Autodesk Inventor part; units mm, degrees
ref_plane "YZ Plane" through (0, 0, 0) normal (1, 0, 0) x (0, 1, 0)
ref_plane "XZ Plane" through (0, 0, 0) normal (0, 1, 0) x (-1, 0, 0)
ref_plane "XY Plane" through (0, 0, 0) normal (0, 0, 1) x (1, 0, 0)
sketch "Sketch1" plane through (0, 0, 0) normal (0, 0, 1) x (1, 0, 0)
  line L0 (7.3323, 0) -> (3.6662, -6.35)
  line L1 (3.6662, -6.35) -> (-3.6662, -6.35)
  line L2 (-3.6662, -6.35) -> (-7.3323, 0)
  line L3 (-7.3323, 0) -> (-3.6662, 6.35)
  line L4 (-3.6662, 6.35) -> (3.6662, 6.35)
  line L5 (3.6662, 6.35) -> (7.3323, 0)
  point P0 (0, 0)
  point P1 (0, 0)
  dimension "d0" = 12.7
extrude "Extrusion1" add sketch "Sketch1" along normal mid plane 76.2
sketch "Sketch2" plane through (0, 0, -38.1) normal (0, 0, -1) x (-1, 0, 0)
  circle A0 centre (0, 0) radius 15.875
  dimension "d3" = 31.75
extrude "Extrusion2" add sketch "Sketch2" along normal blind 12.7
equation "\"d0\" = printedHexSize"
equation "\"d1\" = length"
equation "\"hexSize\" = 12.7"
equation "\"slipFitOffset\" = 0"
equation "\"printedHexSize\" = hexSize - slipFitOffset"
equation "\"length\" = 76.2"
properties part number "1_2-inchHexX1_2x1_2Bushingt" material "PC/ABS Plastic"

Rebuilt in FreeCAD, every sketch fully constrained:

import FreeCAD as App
import Part
import Sketcher
from FreeCAD import Vector
Q = App.Units.Quantity


def add_polygon(sketch, points):
    """Adds a closed chain of lines whose ends are joined by coincident constraints."""
    first, n = sketch.GeometryCount, len(points)
    for a, b in zip(points, points[1:] + points[:1]):
        sketch.addGeometry(Part.LineSegment(App.Vector(*a, 0), App.Vector(*b, 0)), False)
    for i in range(n):
        sketch.addConstraint(Sketcher.Constraint("Coincident", first + i, 2, first + (i + 1) % n, 1))

doc = App.newDocument("Part")
body = doc.addObject("PartDesign::Body", "Body")

# Sketch on XY plane
sketch1 = doc.addObject("Sketcher::SketchObject", "Sketch")
body.addObject(sketch1)
sketch1.AttachmentSupport = (doc.XY_Plane, [""])
sketch1.MapMode = "FlatFace"
add_polygon(sketch1, [(4, -6), (7, 0), (4, 6), (-4, 6), (-7, 0), (-4, -6)])  # lines 0-5
sketch1.addConstraint([
    Sketcher.Constraint("Horizontal", 2),
    Sketcher.Constraint("Horizontal", 5),
    Sketcher.Constraint("Symmetric", 0, 2, 3, 2, -1, 1),
    Sketcher.Constraint("Symmetric", 1, 2, 4, 2, -1, 1),
    Sketcher.Constraint("PointOnObject", 0, 2, -1),
    Sketcher.Constraint("Parallel", 0, 3),
    Sketcher.Constraint("Vertical", 2, 2, 4, 2),
    Sketcher.Constraint("DistanceY", 4, 2, 2, 2, Q("0.5 in")),
    Sketcher.Constraint("Angle", 0, Q("60.0005 deg")),
    Sketcher.Constraint("DistanceX", 2, 2, 0, 2, Q("0.433 in")),
])
pad1 = doc.addObject("PartDesign::Pad", "Pad")
body.addObject(pad1)
pad1.Profile = sketch1
pad1.Length = Q("3 in")
pad1.Midplane = True

# Sketch on XY plane
sketch2 = doc.addObject("Sketcher::SketchObject", "Sketch001")
body.addObject(sketch2)
sketch2.AttachmentSupport = (doc.XY_Plane, [""])
sketch2.MapMode = "FlatFace"
sketch2.AttachmentOffset = App.Placement(Vector(0, 0, -1.5 * 25.4), App.Rotation())
sketch2.addGeometry(Part.Circle(Vector(0, 0, 0), Vector(0, 0, 1), 16), False)
sketch2.addConstraint([
    Sketcher.Constraint("Coincident", 0, 3, -1, 1),
    Sketcher.Constraint("Diameter", 0, Q("1.25 in")),
])
pad2 = doc.addObject("PartDesign::Pad", "Pad001")
body.addObject(pad2)
pad2.Profile = sketch2
pad2.Length = Q("0.5 in")
pad2.Reversed = True

doc.recompute()
